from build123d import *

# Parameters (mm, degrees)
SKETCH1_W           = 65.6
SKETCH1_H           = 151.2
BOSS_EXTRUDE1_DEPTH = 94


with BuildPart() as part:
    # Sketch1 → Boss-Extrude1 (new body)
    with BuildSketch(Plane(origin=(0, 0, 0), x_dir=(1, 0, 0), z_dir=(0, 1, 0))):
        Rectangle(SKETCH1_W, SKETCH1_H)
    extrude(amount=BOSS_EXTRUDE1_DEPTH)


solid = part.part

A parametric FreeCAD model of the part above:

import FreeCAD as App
import Part
import Sketcher
Q = App.Units.Quantity

doc = App.newDocument("Part")
params = doc.addObject("Spreadsheet::Sheet", "Params")
for row, (alias, value) in enumerate([
    ("sketch1_width", "65.6 mm"),
    ("sketch1_height", "151.2 mm"),
    ("pad1_length", "94 mm"),
], start=1):
    params.set(f"A{row}", alias)
    params.set(f"B{row}", "=" + value)
    params.setAlias(f"B{row}", alias)

body = doc.addObject("PartDesign::Body", "Body")

sketch1 = body.newObject("Sketcher::SketchObject", "Sketch")
sketch1.AttachmentSupport = (doc.getObject("XZ_Plane"), [""])
sketch1.MapMode = "FlatFace"
sketch1.addGeometry(Part.LineSegment(App.Vector(-33, -76, 0), App.Vector(-33, 76, 0)), False)
sketch1.addGeometry(Part.LineSegment(App.Vector(-33, 76, 0), App.Vector(33, 76, 0)), False)
sketch1.addGeometry(Part.LineSegment(App.Vector(33, 76, 0), App.Vector(33, -76, 0)), False)
sketch1.addGeometry(Part.LineSegment(App.Vector(33, -76, 0), App.Vector(-33, -76, 0)), False)
sketch1.addConstraint(Sketcher.Constraint("Coincident", 0, 2, 1, 1))
sketch1.addConstraint(Sketcher.Constraint("Coincident", 1, 2, 2, 1))
sketch1.addConstraint(Sketcher.Constraint("Coincident", 2, 2, 3, 1))
sketch1.addConstraint(Sketcher.Constraint("Coincident", 3, 2, 0, 1))
sketch1.addConstraint(Sketcher.Constraint("Vertical", 0))
sketch1.addConstraint(Sketcher.Constraint("Horizontal", 1))
sketch1.addConstraint(Sketcher.Constraint("Vertical", 2))
sketch1.addConstraint(Sketcher.Constraint("Horizontal", 3))
sketch1.addConstraint(Sketcher.Constraint("Symmetric", 0, 2, 2, 2, -1, 1))
sketch1.addConstraint(Sketcher.Constraint("DistanceX", 1, 1, 1, 2, Q("65.6 mm")))
sketch1.addConstraint(Sketcher.Constraint("DistanceY", 0, 1, 0, 2, Q("151.2 mm")))
sketch1.setExpression("Constraints[9]", "Params.sketch1_width")
sketch1.setExpression("Constraints[10]", "Params.sketch1_height")
pad1 = body.newObject("PartDesign::Pad", "Pad")
pad1.Profile = sketch1
pad1.setExpression("Length", "Params.pad1_length")
pad1.Reversed = True

doc.recompute()
